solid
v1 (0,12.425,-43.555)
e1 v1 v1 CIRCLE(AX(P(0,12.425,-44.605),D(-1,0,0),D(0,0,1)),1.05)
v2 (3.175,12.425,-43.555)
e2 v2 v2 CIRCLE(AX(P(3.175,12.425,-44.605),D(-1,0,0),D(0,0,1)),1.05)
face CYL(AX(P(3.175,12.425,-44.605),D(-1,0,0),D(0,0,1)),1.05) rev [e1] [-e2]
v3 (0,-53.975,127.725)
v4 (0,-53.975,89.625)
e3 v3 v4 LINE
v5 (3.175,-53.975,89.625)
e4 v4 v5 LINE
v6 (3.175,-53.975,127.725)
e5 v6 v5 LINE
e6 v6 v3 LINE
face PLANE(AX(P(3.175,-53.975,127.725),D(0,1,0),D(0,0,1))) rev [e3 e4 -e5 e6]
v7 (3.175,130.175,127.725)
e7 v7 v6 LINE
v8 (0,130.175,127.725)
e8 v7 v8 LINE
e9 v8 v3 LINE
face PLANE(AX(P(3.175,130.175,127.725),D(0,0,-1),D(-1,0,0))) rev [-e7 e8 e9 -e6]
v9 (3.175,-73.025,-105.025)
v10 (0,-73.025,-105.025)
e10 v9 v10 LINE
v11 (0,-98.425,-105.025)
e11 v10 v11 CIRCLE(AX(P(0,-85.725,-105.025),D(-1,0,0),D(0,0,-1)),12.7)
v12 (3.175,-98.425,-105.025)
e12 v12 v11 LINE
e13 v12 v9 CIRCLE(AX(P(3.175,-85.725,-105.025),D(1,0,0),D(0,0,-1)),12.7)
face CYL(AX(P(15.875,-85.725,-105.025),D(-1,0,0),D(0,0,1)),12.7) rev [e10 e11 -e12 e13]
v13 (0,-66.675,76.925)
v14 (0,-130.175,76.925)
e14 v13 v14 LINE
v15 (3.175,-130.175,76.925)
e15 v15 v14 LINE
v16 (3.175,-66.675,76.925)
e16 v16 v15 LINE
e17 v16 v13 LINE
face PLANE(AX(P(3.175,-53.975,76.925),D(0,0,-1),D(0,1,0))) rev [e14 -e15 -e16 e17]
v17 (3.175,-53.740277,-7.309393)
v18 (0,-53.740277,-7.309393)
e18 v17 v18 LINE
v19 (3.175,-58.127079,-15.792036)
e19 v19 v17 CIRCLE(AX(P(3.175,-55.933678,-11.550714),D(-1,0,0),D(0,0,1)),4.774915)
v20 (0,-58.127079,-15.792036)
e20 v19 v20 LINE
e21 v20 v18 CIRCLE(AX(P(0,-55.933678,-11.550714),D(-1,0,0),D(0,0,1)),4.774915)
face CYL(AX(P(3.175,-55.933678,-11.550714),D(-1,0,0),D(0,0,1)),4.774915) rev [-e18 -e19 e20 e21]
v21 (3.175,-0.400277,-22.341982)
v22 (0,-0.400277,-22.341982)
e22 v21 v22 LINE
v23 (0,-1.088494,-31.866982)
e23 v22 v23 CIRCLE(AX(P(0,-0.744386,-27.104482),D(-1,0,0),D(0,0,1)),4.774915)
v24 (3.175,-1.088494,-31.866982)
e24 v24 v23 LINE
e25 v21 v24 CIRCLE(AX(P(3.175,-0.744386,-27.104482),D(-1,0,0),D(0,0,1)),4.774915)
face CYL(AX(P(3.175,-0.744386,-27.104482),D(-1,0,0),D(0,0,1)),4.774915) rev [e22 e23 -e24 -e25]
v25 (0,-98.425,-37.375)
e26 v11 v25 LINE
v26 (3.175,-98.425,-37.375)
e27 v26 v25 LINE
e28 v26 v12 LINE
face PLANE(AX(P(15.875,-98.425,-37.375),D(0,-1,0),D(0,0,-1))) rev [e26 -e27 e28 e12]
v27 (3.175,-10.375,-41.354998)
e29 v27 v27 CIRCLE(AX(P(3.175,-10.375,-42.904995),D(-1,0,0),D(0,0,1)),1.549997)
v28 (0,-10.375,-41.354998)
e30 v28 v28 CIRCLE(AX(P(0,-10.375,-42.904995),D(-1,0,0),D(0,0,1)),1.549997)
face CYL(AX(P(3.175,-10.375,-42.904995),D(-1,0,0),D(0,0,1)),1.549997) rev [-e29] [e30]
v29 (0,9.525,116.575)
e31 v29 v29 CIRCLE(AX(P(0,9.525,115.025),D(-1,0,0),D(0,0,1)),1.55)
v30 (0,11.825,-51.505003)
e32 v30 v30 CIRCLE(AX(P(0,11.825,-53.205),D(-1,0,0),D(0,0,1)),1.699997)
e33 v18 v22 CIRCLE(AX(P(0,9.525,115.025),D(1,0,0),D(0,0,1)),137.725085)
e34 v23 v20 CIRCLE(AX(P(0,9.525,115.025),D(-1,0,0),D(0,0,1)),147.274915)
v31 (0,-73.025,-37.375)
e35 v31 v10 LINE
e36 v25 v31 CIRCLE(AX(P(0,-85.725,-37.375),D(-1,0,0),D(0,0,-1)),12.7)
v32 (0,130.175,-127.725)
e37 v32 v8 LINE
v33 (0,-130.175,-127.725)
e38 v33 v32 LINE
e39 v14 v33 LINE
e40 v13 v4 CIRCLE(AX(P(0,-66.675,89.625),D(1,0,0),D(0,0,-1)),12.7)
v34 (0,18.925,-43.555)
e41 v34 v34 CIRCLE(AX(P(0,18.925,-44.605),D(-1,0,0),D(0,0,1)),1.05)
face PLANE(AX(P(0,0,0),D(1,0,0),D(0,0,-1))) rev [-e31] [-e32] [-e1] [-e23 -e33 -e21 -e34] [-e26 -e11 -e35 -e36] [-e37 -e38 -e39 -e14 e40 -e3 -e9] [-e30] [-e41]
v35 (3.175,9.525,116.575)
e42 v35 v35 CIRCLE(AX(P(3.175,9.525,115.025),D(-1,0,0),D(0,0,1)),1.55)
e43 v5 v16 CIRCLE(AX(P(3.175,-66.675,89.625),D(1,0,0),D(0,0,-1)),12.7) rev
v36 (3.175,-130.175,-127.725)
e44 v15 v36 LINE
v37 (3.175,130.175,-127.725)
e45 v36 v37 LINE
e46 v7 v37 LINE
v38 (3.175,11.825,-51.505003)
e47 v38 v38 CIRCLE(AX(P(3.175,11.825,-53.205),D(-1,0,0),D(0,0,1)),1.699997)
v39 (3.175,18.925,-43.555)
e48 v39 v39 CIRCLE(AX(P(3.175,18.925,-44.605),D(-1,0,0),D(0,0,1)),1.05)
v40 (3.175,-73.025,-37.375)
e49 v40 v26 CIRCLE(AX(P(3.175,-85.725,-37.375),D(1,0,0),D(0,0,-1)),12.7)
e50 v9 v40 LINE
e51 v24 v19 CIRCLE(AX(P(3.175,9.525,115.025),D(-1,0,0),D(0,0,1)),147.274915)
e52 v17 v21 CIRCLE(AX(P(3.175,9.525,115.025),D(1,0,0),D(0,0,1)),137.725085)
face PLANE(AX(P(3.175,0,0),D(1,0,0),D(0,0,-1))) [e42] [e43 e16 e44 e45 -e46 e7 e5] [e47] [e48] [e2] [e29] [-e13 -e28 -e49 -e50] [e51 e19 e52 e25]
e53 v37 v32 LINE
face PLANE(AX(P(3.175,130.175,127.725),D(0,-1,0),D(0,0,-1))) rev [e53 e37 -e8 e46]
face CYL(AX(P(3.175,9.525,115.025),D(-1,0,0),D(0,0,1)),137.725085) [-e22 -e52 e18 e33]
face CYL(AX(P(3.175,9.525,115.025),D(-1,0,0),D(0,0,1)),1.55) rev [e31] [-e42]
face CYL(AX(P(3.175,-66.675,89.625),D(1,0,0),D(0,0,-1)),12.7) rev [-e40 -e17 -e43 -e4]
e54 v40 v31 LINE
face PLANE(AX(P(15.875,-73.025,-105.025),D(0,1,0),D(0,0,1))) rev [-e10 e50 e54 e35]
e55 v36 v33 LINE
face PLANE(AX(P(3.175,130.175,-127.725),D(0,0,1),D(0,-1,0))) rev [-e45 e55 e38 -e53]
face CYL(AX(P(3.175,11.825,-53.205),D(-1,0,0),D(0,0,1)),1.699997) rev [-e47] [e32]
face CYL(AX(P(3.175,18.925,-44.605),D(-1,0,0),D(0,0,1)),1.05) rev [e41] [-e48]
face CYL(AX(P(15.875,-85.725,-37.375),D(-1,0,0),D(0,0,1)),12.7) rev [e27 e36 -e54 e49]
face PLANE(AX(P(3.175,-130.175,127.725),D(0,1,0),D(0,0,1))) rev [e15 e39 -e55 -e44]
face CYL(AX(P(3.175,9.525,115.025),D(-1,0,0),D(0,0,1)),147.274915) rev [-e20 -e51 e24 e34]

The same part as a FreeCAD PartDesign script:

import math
import FreeCAD as App
import Part
import Sketcher

V = App.Vector
Q = App.Units.Quantity


def edges_at(feature, points):
    """Names of the edges that pass closest to the given points."""
    edges = feature.Shape.Edges
    near = lambda p: min(range(len(edges)), key=lambda i: edges[i].distToShape(Part.Vertex(*p))[0])
    return sorted({f"Edge{near(p) + 1}" for p in points})

doc = App.newDocument("Part")
params = doc.addObject("Spreadsheet::Sheet", "Params")
for row, (alias, value) in enumerate([
    ("sketch1_width", "10.25 in"),
    ("pad1_length", "0.125 in"),
    ("sketch2_width", "0.25 in"),
    ("pad2_length", "0.5 in"),
    ("sketch3_radius", "0.5 in"),
    ("sketch6_width", "3 in"),
    ("sketch6_height", "2 in"),
    ("fillet_radius", "0.5 in"),
    ("sketch7_height", "0.1875 in"),
], start=1):
    params.set(f"A{row}", alias)
    params.set(f"B{row}", "=" + value)
    params.setAlias(f"B{row}", alias)

body = doc.addObject("PartDesign::Body", "Body")

# Sketch on YZ plane
sketch1 = body.newObject("Sketcher::SketchObject", "Sketch")
sketch1.AttachmentSupport = (doc.getObject("YZ_Plane"), [""])
sketch1.MapMode = "FlatFace"
sketch1.addGeometry([
    Part.LineSegment(V(130, 128, 0), V(-130, 128, 0)),
    Part.LineSegment(V(-130, 128, 0), V(-130, -128, 0)),
    Part.LineSegment(V(-130, -128, 0), V(130, -128, 0)),
    Part.LineSegment(V(130, -128, 0), V(130, 128, 0)),
], False)
sketch1.addConstraint([
    Sketcher.Constraint("Coincident", 0, 2, 1, 1),
    Sketcher.Constraint("Coincident", 1, 2, 2, 1),
    Sketcher.Constraint("Coincident", 2, 2, 3, 1),
    Sketcher.Constraint("Coincident", 3, 2, 0, 1),
    Sketcher.Constraint("Horizontal", 0),
    Sketcher.Constraint("Vertical", 1),
    Sketcher.Constraint("Horizontal", 2),
    Sketcher.Constraint("Vertical", 3),
    Sketcher.Constraint("Symmetric", 0, 2, 2, 2, -1, 1),
    Sketcher.Constraint("DistanceX", 0, 2, 0, 1, Q("10.25 in")),
    Sketcher.Constraint("DistanceY", 1, 2, 1, 1, Q("255.45 mm")),
])
sketch1.setExpression("Constraints[9]", "Params.sketch1_width")
pad1 = body.newObject("PartDesign::Pad", "Pad")
pad1.Profile = sketch1
pad1.setExpression("Length", "Params.pad1_length")

# Sketch on YZ plane
sketch2 = body.newObject("Sketcher::SketchObject", "Sketch001")
sketch2.AttachmentSupport = (doc.getObject("YZ_Plane"), [""])
sketch2.MapMode = "FlatFace"
sketch2.AttachmentOffset = App.Placement(V(0, 0, 0.125 * 25.4), App.Rotation())
sketch2.addGeometry([
    Part.LineSegment(V(130, 128, 0), V(124, 128, 0)),
    Part.LineSegment(V(124, 128, 0), V(124, -128, 0)),
    Part.LineSegment(V(124, -128, 0), V(130, -128, 0)),
    Part.LineSegment(V(130, -128, 0), V(130, 128, 0)),
], False)
sketch2.addConstraint([
    Sketcher.Constraint("Coincident", 0, 2, 1, 1),
    Sketcher.Constraint("Coincident", 1, 2, 2, 1),
    Sketcher.Constraint("Coincident", 2, 2, 3, 1),
    Sketcher.Constraint("Coincident", 3, 2, 0, 1),
    Sketcher.Constraint("Horizontal", 0),
    Sketcher.Constraint("Vertical", 1),
    Sketcher.Constraint("Horizontal", 2),
    Sketcher.Constraint("Vertical", 3),
    Sketcher.Constraint("DistanceX", 0, 2, 0, 1, Q("0.25 in")),
    Sketcher.Constraint("DistanceX", -1, 1, 0, 2, Q("4.875 in")),
    Sketcher.Constraint("DistanceY", 1, 2, 1, 1, Q("255.45 mm")),
    Sketcher.Constraint("DistanceY", -1, 1, 0, 2, Q("127.725 mm")),
])
sketch2.setExpression("Constraints[8]", "Params.sketch2_width")
pad2 = body.newObject("PartDesign::Pad", "Pad001")
pad2.Profile = sketch2
pad2.setExpression("Length", "Params.pad2_length")

# Sketch on YZ plane
sketch3 = body.newObject("Sketcher::SketchObject", "Sketch002")
sketch3.AttachmentSupport = (doc.getObject("YZ_Plane"), [""])
sketch3.MapMode = "FlatFace"
sketch3.addGeometry([
    Part.LineSegment(V(-73, -37, 0), V(-73, -105, 0)),
    Part.ArcOfCircle(Part.Circle(V(-86, -105, 0), V(0, 0, 1), 13), math.radians(180), math.radians(360)),
    Part.LineSegment(V(-98, -105, 0), V(-98, -37, 0)),
    Part.ArcOfCircle(Part.Circle(V(-86, -37, 0), V(0, 0, 1), 13), math.radians(0), math.radians(180)),
], False)
sketch3.addConstraint([
    Sketcher.Constraint("Tangent", 0, 2, 1, 2),
    Sketcher.Constraint("Tangent", 1, 1, 2, 1),
    Sketcher.Constraint("Tangent", 2, 2, 3, 2),
    Sketcher.Constraint("Tangent", 3, 1, 0, 1),
    Sketcher.Constraint("Vertical", 0),
    Sketcher.Constraint("Vertical", 2),
    Sketcher.Constraint("Radius", 1, Q("0.5 in")),
    Sketcher.Constraint("DistanceX", 1, 3, -1, 1, Q("3.375 in")),
    Sketcher.Constraint("DistanceY", 0, 2, 0, 1, Q("67.65 mm")),
    Sketcher.Constraint("DistanceY", 1, 3, -1, 1, Q("105.025 mm")),
])
sketch3.setExpression("Constraints[6]", "Params.sketch3_radius")
pocket1 = body.newObject("PartDesign::Pocket", "Pocket")
pocket1.Profile = sketch3
pocket1.Type = "ThroughAll"
pocket1.Reversed = True

# Sketch on XY plane
sketch4 = body.newObject("Sketcher::SketchObject", "Sketch003")
sketch4.AttachmentSupport = (doc.getObject("XY_Plane"), [""])
sketch4.MapMode = "FlatFace"
sketch4.AttachmentOffset = App.Placement(V(0, 0, -127.725), App.Rotation())
sketch4.addGeometry([
    Part.LineSegment(V(58, 158, 0), V(58, 124, 0)),
    Part.LineSegment(V(58, 124, 0), V(3, 124, 0)),
    Part.LineSegment(V(3, 124, 0), V(3, 158, 0)),
    Part.LineSegment(V(3, 158, 0), V(58, 158, 0)),
], False)
sketch4.addConstraint([
    Sketcher.Constraint("Coincident", 0, 2, 1, 1),
    Sketcher.Constraint("Coincident", 1, 2, 2, 1),
    Sketcher.Constraint("Coincident", 2, 2, 3, 1),
    Sketcher.Constraint("Coincident", 3, 2, 0, 1),
    Sketcher.Constraint("Vertical", 0),
    Sketcher.Constraint("Horizontal", 1),
    Sketcher.Constraint("Vertical", 2),
    Sketcher.Constraint("Horizontal", 3),
    Sketcher.Constraint("DistanceY", -1, 1, 0, 2, Q("4.875 in")),
    Sketcher.Constraint("DistanceX", -1, 1, 1, 2, Q("0.125 in")),
    Sketcher.Constraint("DistanceX", 1, 2, 1, 1, Q("54.590141 mm")),
    Sketcher.Constraint("DistanceY", 0, 2, 0, 1, Q("33.859166 mm")),
])
pocket2 = body.newObject("PartDesign::Pocket", "Pocket001")
pocket2.Profile = sketch4
pocket2.Type = "ThroughAll"
pocket2.Reversed = True

# Sketch on YZ plane
sketch5 = body.newObject("Sketcher::SketchObject", "Sketch004")
sketch5.AttachmentSupport = (doc.getObject("YZ_Plane"), [""])
sketch5.MapMode = "FlatFace"
sketch5.addGeometry([
    Part.Circle(V(9.5, 115, 0), V(0, 0, 1), 1.6),  # 0
    Part.Circle(V(11.8, -53.2, 0), V(0, 0, 1), 1.7),  # 1
    Part.Circle(V(-10.4, -42.9, 0), V(0, 0, 1), 1.5),  # 2
    Part.Circle(V(18.9, -44.6, 0), V(0, 0, 1), 1.1),  # 3
    Part.Circle(V(12.4, -44.6, 0), V(0, 0, 1), 1.1),  # 4
], False)
sketch5.addConstraint([
    Sketcher.Constraint("Equal", 3, 4),
    Sketcher.Constraint("Horizontal", 3, 3, 4, 3),
    Sketcher.Constraint("Diameter", 0, Q("3.1 mm")),
    Sketcher.Constraint("Diameter", 3, Q("2.1 mm")),
    Sketcher.Constraint("DistanceX", -1, 1, 0, 3, Q("0.375 in")),
    Sketcher.Constraint("Diameter", 1, Q("3.399993 mm")),
    Sketcher.Constraint("Diameter", 2, Q("3.099994 mm")),
    Sketcher.Constraint("DistanceY", -1, 1, 0, 3, Q("115.025 mm")),
    Sketcher.Constraint("DistanceX", -1, 1, 1, 3, Q("11.825 mm")),
    Sketcher.Constraint("DistanceY", 1, 3, -1, 1, Q("53.205 mm")),
    Sketcher.Constraint("DistanceX", 2, 3, -1, 1, Q("10.375 mm")),
    Sketcher.Constraint("DistanceX", -1, 1, 3, 3, Q("18.925 mm")),
    Sketcher.Constraint("DistanceY", 3, 3, -1, 1, Q("44.605 mm")),
    Sketcher.Constraint("DistanceX", -1, 1, 4, 3, Q("12.425 mm")),
    Sketcher.Constraint("DistanceY", 2, 3, -1, 1, Q("42.904995 mm")),
])
pocket3 = body.newObject("PartDesign::Pocket", "Pocket002")
pocket3.Profile = sketch5
pocket3.Type = "ThroughAll"
pocket3.Reversed = True

# Sketch on YZ plane
sketch6 = body.newObject("Sketcher::SketchObject", "Sketch005")
sketch6.AttachmentSupport = (doc.getObject("YZ_Plane"), [""])
sketch6.MapMode = "FlatFace"
sketch6.addGeometry([
    Part.LineSegment(V(-54, 77, 0), V(-130, 77, 0)),
    Part.LineSegment(V(-130, 77, 0), V(-130, 128, 0)),
    Part.LineSegment(V(-130, 128, 0), V(-54, 128, 0)),
    Part.LineSegment(V(-54, 128, 0), V(-54, 77, 0)),
], False)
sketch6.addConstraint([
    Sketcher.Constraint("Coincident", 0, 2, 1, 1),
    Sketcher.Constraint("Coincident", 1, 2, 2, 1),
    Sketcher.Constraint("Coincident", 2, 2, 3, 1),
    Sketcher.Constraint("Coincident", 3, 2, 0, 1),
    Sketcher.Constraint("Horizontal", 0),
    Sketcher.Constraint("Vertical", 1),
    Sketcher.Constraint("Horizontal", 2),
    Sketcher.Constraint("Vertical", 3),
    Sketcher.Constraint("DistanceX", 0, 2, 0, 1, Q("3 in")),
    Sketcher.Constraint("DistanceY", 1, 1, 1, 2, Q("2 in")),
    Sketcher.Constraint("DistanceX", 0, 2, -1, 1, Q("5.125 in")),
    Sketcher.Constraint("DistanceY", -1, 1, 0, 2, Q("76.925 mm")),
])
sketch6.setExpression("Constraints[8]", "Params.sketch6_width")
sketch6.setExpression("Constraints[9]", "Params.sketch6_height")
pocket4 = body.newObject("PartDesign::Pocket", "Pocket003")
pocket4.Profile = sketch6
pocket4.Type = "ThroughAll"
pocket4.Reversed = True
doc.recompute()

fillet = body.newObject("PartDesign::Fillet", "Fillet")
fillet.Base = (pocket4, edges_at(pocket4, [(1.587, -53.975, 76.925)]))
fillet.setExpression("Radius", "Params.fillet_radius")

# Sketch on YZ plane
sketch7 = body.newObject("Sketcher::SketchObject", "Sketch006")
sketch7.AttachmentSupport = (doc.getObject("YZ_Plane"), [""])
sketch7.MapMode = "FlatFace"
sketch7.addGeometry([
    Part.ArcOfCircle(Part.Circle(V(-55.933678, -11.550714, 0), V(0, 0, 1), 4.774915), math.radians(62.654238), math.radians(242.654238)),
    Part.ArcOfCircle(Part.Circle(V(9.525, 115.025, 0), V(0, 0, 1), 137.725085), math.radians(-117.345762), math.radians(-94.132652)),
    Part.ArcOfCircle(Part.Circle(V(-0.744386, -27.104482, 0), V(0, 0, 1), 4.774915), math.radians(-94.132652), math.radians(85.867348)),
    Part.ArcOfCircle(Part.Circle(V(9.525, 115.025, 0), V(0, 0, 1), 147.274915), math.radians(-117.345762), math.radians(-94.132652)),
], False)
sketch7.addConstraint([
    Sketcher.Constraint("Coincident", 0, 1, 1, 1),
    Sketcher.Constraint("Coincident", 1, 2, 2, 2),
    Sketcher.Constraint("Coincident", 2, 1, 3, 2),
    Sketcher.Constraint("Coincident", 3, 1, 0, 2),
    Sketcher.Constraint("Coincident", 3, 3, 1, 3),
    Sketcher.Constraint("DistanceX", 0, 1, 1, 2, Q("2.1 in")),
    Sketcher.Constraint("DistanceX", -1, 1, 1, 3, Q("0.375 in")),
    Sketcher.Constraint("DistanceY", 2, 3, 1, 2, Q("0.1875 in")),
    Sketcher.Constraint("DistanceY", 2, 1, 2, 3, Q("0.1875 in")),
    Sketcher.Constraint("Radius", 0, Q("4.774915 mm")),
    Sketcher.Constraint("Radius", 1, Q("137.725085 mm")),
    Sketcher.Constraint("DistanceY", -1, 1, 1, 3, Q("115.025 mm")),
    Sketcher.Constraint("DistanceX", 0, 3, 0, 1, Q("2.193401 mm")),
    Sketcher.Constraint("DistanceX", 3, 1, 0, 3, Q("2.193401 mm")),
    Sketcher.Constraint("DistanceX", 0, 3, -1, 1, Q("55.933678 mm")),
])
sketch7.setExpression("Constraints[8]", "Params.sketch7_height")
pocket5 = body.newObject("PartDesign::Pocket", "Pocket004")
pocket5.Profile = sketch7
pocket5.Type = "ThroughAll"
pocket5.Reversed = True

doc.recompute()
